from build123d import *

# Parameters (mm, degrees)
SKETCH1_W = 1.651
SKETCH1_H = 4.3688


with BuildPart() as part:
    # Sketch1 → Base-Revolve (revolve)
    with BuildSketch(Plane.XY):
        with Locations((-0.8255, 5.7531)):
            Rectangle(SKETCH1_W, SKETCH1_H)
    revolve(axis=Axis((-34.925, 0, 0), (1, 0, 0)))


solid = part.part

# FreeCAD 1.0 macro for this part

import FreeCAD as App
import Part
import Sketcher
Q = App.Units.Quantity


def add_polygon(sketch, points):
    """Adds a closed chain of lines whose ends are joined by coincident constraints."""
    first, n = sketch.GeometryCount, len(points)
    for a, b in zip(points, points[1:] + points[:1]):
        sketch.addGeometry(Part.LineSegment(App.Vector(*a, 0), App.Vector(*b, 0)), False)
    for i in range(n):
        sketch.addConstraint(Sketcher.Constraint("Coincident", first + i, 2, first + (i + 1) % n, 1))

doc = App.newDocument("Part")
params = doc.addObject("Spreadsheet::Sheet", "Params")
for row, (alias, value) in enumerate([
    ("sketch1_width", "0.065 in"),
    ("sketch1_height", "0.172 in"),
    ("revolution_angle", "360 deg"),
], start=1):
    params.set(f"A{row}", alias)
    params.set(f"B{row}", "=" + value)
    params.setAlias(f"B{row}", alias)

body = doc.addObject("PartDesign::Body", "Body")

# Sketch on XY plane
sketch1 = body.newObject("Sketcher::SketchObject", "Sketch")
sketch1.AttachmentSupport = (doc.getObject("XY_Plane"), [""])
sketch1.MapMode = "FlatFace"
add_polygon(sketch1, [(-1.7, 7.9), (-1.7, 3.6), (0, 3.6), (0, 7.9)])  # lines 0-3
sketch1.addConstraint(Sketcher.Constraint("Vertical", 0))
sketch1.addConstraint(Sketcher.Constraint("Horizontal", 1))
sketch1.addConstraint(Sketcher.Constraint("Vertical", 2))
sketch1.addConstraint(Sketcher.Constraint("Horizontal", 3))
sketch1.addConstraint(Sketcher.Constraint("PointOnObject", 1, 2, -2))
sketch1.addConstraint(Sketcher.Constraint("DistanceX", 1, 1, 1, 2, Q("0.065 in")))
sketch1.addConstraint(Sketcher.Constraint("DistanceY", 0, 2, 0, 1, Q("0.172 in")))
sketch1.addConstraint(Sketcher.Constraint("DistanceY", -1, 1, 2, 2, Q("0.3125 in")))
sketch1.setExpression("Constraints[9]", "Params.sketch1_width")
sketch1.setExpression("Constraints[10]", "Params.sketch1_height")
revolution = body.newObject("PartDesign::Revolution", "Revolution")
revolution.Profile = sketch1
revolution.ReferenceAxis = (sketch1, ["H_Axis"])
revolution.setExpression("Angle", "Params.revolution_angle")

doc.recompute()
